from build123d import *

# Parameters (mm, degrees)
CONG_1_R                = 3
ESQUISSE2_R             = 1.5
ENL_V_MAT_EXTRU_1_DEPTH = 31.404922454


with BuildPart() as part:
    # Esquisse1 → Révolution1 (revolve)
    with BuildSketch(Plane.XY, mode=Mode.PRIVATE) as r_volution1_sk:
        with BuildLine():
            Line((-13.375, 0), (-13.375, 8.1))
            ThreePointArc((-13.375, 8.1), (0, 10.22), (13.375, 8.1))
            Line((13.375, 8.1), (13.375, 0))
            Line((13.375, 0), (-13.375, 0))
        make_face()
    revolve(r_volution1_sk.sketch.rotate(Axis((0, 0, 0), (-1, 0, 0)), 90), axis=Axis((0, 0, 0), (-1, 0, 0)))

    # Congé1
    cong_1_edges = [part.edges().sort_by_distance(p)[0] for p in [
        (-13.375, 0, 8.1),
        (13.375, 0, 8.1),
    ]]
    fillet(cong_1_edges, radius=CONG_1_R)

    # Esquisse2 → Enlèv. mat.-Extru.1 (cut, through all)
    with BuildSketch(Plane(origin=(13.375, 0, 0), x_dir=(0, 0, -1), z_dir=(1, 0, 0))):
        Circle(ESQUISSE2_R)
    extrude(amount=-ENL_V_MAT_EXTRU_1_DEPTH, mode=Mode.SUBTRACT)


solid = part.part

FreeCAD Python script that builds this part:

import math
import FreeCAD as App
import Part
import Sketcher
from FreeCAD import Vector


def edges_at(feature, points):
    """Names of the edges that pass closest to the given points."""
    edges = feature.Shape.Edges
    near = lambda p: min(range(len(edges)), key=lambda i: edges[i].distToShape(Part.Vertex(*p))[0])
    return sorted({f"Edge{near(p) + 1}" for p in points})

doc = App.newDocument("Part")
params = doc.addObject("Spreadsheet::Sheet", "Params")
for row, (alias, value) in enumerate([
    ("sketch1_height", "8.1 mm"),
    ("sketch1_width", "26.75 mm"),
    ("revolution_angle", "360 deg"),
    ("fillet_radius", "3 mm"),
    ("sketch2_diameter", "3 mm"),
], start=1):
    params.set(f"A{row}", alias)
    params.set(f"B{row}", "=" + value)
    params.setAlias(f"B{row}", alias)

body = doc.addObject("PartDesign::Body", "Body")

# Sketch on XY plane
sketch1 = doc.addObject("Sketcher::SketchObject", "Sketch")
body.addObject(sketch1)
sketch1.AttachmentSupport = (doc.XY_Plane, [""])
sketch1.MapMode = "FlatFace"
sketch1.addGeometry([
    Part.LineSegment(Vector(-13.375, 8.1, 0), Vector(-13.375, 0, 0)),
    Part.LineSegment(Vector(-13.375, 0, 0), Vector(13.375, 0, 0)),
    Part.LineSegment(Vector(13.375, 0, 0), Vector(13.375, 8.1, 0)),
    Part.ArcOfCircle(Part.Circle(Vector(0, -33.031185, 0), Vector(0, 0, 1), 43.251185), math.radians(71.98656), math.radians(108.01344)),
], False)
sketch1.addConstraint([
    Sketcher.Constraint("Coincident", 0, 2, 1, 1),
    Sketcher.Constraint("Coincident", 1, 2, 2, 1),
    Sketcher.Constraint("Coincident", 2, 2, 3, 1),
    Sketcher.Constraint("Coincident", 3, 2, 0, 1),
    Sketcher.Constraint("Vertical", 0),
    Sketcher.Constraint("Horizontal", 1),
    Sketcher.Constraint("Vertical", 2),
    Sketcher.Constraint("Symmetric", 0, 2, 1, 2, -1, 1),
    Sketcher.Constraint("PointOnObject", 3, 3, -2),
    Sketcher.Constraint("DistanceY", 0, 2, 0, 1, 8.1),
    Sketcher.Constraint("DistanceX", 1, 1, 1, 2, 26.75),
    Sketcher.Constraint("Radius", 3, 43.251185),
])
sketch1.setExpression("Constraints[9]", "Params.sketch1_height")
sketch1.setExpression("Constraints[10]", "Params.sketch1_width")
revolution = doc.addObject("PartDesign::Revolution", "Revolution")
body.addObject(revolution)
revolution.Profile = sketch1
revolution.ReferenceAxis = (sketch1, ["H_Axis"])
revolution.setExpression("Angle", "Params.revolution_angle")
doc.recompute()

fillet = doc.addObject("PartDesign::Fillet", "Fillet")
body.addObject(fillet)
fillet.Base = (revolution, edges_at(revolution, [(-13.375, 0, 8.1), (13.375, 0, 8.1)]))
fillet.setExpression("Radius", "Params.fillet_radius")

# Sketch on YZ plane
sketch2 = doc.addObject("Sketcher::SketchObject", "Sketch001")
body.addObject(sketch2)
sketch2.AttachmentSupport = (doc.YZ_Plane, [""])
sketch2.MapMode = "FlatFace"
sketch2.AttachmentOffset = App.Placement(Vector(0, 0, 13.375), App.Rotation())
sketch2.addGeometry(Part.Circle(Vector(0, 0, 0), Vector(0, 0, 1), 1.5), False)
sketch2.addConstraint([
    Sketcher.Constraint("Coincident", 0, 3, -1, 1),
    Sketcher.Constraint("Diameter", 0, 3.0),
])
sketch2.setExpression("Constraints[1]", "Params.sketch2_diameter")
pocket1 = doc.addObject("PartDesign::Pocket", "Pocket")
body.addObject(pocket1)
pocket1.Profile = sketch2
pocket1.Type = "ThroughAll"

doc.recompute()
